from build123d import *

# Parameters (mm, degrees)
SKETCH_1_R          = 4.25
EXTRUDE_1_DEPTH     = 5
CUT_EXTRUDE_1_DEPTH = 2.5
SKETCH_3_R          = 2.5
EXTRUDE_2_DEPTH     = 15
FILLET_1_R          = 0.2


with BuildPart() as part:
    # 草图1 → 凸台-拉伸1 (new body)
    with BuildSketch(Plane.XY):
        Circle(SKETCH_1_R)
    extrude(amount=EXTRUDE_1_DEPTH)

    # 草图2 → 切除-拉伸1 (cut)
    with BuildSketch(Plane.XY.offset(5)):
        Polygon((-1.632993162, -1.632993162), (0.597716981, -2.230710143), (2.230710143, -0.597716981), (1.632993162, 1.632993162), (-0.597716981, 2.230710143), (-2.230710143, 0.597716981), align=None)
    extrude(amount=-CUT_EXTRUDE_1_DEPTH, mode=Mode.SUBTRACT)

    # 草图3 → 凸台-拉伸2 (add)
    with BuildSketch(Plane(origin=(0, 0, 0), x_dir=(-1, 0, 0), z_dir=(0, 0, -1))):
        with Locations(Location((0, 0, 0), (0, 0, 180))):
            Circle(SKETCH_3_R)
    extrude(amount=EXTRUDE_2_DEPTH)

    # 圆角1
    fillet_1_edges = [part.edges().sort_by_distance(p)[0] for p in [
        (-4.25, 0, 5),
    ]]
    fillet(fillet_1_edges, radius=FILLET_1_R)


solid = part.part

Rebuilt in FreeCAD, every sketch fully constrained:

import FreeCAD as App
import Part
import Sketcher
Q = App.Units.Quantity


def edges_at(feature, points):
    """Names of the edges that pass closest to the given points."""
    edges = feature.Shape.Edges
    near = lambda p: min(range(len(edges)), key=lambda i: edges[i].distToShape(Part.Vertex(*p))[0])
    return sorted({f"Edge{near(p) + 1}" for p in points})

doc = App.newDocument("Part")
params = doc.addObject("Spreadsheet::Sheet", "Params")
for row, (alias, value) in enumerate([
    ("sketch1_diameter", "8.5 mm"),
    ("pad1_length", "5 mm"),
    ("pocket1_length", "2.5 mm"),
    ("sketch3_diameter", "5 mm"),
    ("pad2_length", "15 mm"),
    ("fillet_radius", "0.2 mm"),
], start=1):
    params.set(f"A{row}", alias)
    params.set(f"B{row}", "=" + value)
    params.setAlias(f"B{row}", alias)

body = doc.addObject("PartDesign::Body", "Body")

# Sketch on XY plane
sketch1 = body.newObject("Sketcher::SketchObject", "Sketch")
sketch1.AttachmentSupport = (doc.getObject("XY_Plane"), [""])
sketch1.MapMode = "FlatFace"
sketch1.addGeometry(Part.Circle(App.Vector(0, 0, 0), App.Vector(0, 0, 1), 4.25), False)
sketch1.addConstraint(Sketcher.Constraint("Coincident", 0, 3, -1, 1))
sketch1.addConstraint(Sketcher.Constraint("Diameter", 0, 8.5))
sketch1.setExpression("Constraints[1]", "Params.sketch1_diameter")
pad1 = body.newObject("PartDesign::Pad", "Pad")
pad1.Profile = sketch1
pad1.setExpression("Length", "Params.pad1_length")

# Sketch on XY plane
sketch2 = body.newObject("Sketcher::SketchObject", "Sketch001")
sketch2.AttachmentSupport = (doc.getObject("XY_Plane"), [""])
sketch2.MapMode = "FlatFace"
sketch2.AttachmentOffset = App.Placement(App.Vector(0, 0, 5), App.Rotation())
sketch2.addGeometry(Part.LineSegment(App.Vector(-1.632993, -1.632993, 0), App.Vector(0.597717, -2.23071, 0)), False)
sketch2.addGeometry(Part.LineSegment(App.Vector(0.597717, -2.23071, 0), App.Vector(2.23071, -0.597717, 0)), False)
sketch2.addGeometry(Part.LineSegment(App.Vector(2.23071, -0.597717, 0), App.Vector(1.632993, 1.632993, 0)), False)
sketch2.addGeometry(Part.LineSegment(App.Vector(1.632993, 1.632993, 0), App.Vector(-0.597717, 2.23071, 0)), False)
sketch2.addGeometry(Part.LineSegment(App.Vector(-0.597717, 2.23071, 0), App.Vector(-2.23071, 0.597717, 0)), False)
sketch2.addGeometry(Part.LineSegment(App.Vector(-2.23071, 0.597717, 0), App.Vector(-1.632993, -1.632993, 0)), False)
sketch2.addConstraint(Sketcher.Constraint("Coincident", 0, 2, 1, 1))
sketch2.addConstraint(Sketcher.Constraint("Coincident", 1, 2, 2, 1))
sketch2.addConstraint(Sketcher.Constraint("Coincident", 2, 2, 3, 1))
sketch2.addConstraint(Sketcher.Constraint("Coincident", 3, 2, 4, 1))
sketch2.addConstraint(Sketcher.Constraint("Coincident", 4, 2, 5, 1))
sketch2.addConstraint(Sketcher.Constraint("Coincident", 5, 2, 0, 1))
sketch2.addConstraint(Sketcher.Constraint("Symmetric", 0, 2, 3, 2, -1, 1))
sketch2.addConstraint(Sketcher.Constraint("Symmetric", 1, 2, 4, 2, -1, 1))
sketch2.addConstraint(Sketcher.Constraint("Symmetric", 2, 2, 5, 2, -1, 1))
sketch2.addConstraint(Sketcher.Constraint("Equal", 0, 1))
sketch2.addConstraint(Sketcher.Constraint("Equal", 1, 2))
sketch2.addConstraint(Sketcher.Constraint("Angle", 0, Q("-15 deg")))
sketch2.addConstraint(Sketcher.Constraint("Angle", 1, Q("45 deg")))
sketch2.addConstraint(Sketcher.Constraint("Angle", 2, Q("105 deg")))
sketch2.addConstraint(Sketcher.Constraint("Distance", 0, 2.309401))
pocket1 = body.newObject("PartDesign::Pocket", "Pocket")
pocket1.Profile = sketch2
pocket1.setExpression("Length", "Params.pocket1_length")

# Sketch on XY plane
sketch3 = body.newObject("Sketcher::SketchObject", "Sketch002")
sketch3.AttachmentSupport = (doc.getObject("XY_Plane"), [""])
sketch3.MapMode = "FlatFace"
sketch3.addGeometry(Part.Circle(App.Vector(0, 0, 0), App.Vector(0, 0, 1), 2.5), False)
sketch3.addConstraint(Sketcher.Constraint("Coincident", 0, 3, -1, 1))
sketch3.addConstraint(Sketcher.Constraint("Diameter", 0, 5.0))
sketch3.setExpression("Constraints[1]", "Params.sketch3_diameter")
pad2 = body.newObject("PartDesign::Pad", "Pad001")
pad2.Profile = sketch3
pad2.setExpression("Length", "Params.pad2_length")
pad2.Reversed = True
doc.recompute()

fillet = body.newObject("PartDesign::Fillet", "Fillet")
fillet.Base = (pad2, edges_at(pad2, [(-4.25, 0, 5)]))
fillet.setExpression("Radius", "Params.fillet_radius")

doc.recompute()
